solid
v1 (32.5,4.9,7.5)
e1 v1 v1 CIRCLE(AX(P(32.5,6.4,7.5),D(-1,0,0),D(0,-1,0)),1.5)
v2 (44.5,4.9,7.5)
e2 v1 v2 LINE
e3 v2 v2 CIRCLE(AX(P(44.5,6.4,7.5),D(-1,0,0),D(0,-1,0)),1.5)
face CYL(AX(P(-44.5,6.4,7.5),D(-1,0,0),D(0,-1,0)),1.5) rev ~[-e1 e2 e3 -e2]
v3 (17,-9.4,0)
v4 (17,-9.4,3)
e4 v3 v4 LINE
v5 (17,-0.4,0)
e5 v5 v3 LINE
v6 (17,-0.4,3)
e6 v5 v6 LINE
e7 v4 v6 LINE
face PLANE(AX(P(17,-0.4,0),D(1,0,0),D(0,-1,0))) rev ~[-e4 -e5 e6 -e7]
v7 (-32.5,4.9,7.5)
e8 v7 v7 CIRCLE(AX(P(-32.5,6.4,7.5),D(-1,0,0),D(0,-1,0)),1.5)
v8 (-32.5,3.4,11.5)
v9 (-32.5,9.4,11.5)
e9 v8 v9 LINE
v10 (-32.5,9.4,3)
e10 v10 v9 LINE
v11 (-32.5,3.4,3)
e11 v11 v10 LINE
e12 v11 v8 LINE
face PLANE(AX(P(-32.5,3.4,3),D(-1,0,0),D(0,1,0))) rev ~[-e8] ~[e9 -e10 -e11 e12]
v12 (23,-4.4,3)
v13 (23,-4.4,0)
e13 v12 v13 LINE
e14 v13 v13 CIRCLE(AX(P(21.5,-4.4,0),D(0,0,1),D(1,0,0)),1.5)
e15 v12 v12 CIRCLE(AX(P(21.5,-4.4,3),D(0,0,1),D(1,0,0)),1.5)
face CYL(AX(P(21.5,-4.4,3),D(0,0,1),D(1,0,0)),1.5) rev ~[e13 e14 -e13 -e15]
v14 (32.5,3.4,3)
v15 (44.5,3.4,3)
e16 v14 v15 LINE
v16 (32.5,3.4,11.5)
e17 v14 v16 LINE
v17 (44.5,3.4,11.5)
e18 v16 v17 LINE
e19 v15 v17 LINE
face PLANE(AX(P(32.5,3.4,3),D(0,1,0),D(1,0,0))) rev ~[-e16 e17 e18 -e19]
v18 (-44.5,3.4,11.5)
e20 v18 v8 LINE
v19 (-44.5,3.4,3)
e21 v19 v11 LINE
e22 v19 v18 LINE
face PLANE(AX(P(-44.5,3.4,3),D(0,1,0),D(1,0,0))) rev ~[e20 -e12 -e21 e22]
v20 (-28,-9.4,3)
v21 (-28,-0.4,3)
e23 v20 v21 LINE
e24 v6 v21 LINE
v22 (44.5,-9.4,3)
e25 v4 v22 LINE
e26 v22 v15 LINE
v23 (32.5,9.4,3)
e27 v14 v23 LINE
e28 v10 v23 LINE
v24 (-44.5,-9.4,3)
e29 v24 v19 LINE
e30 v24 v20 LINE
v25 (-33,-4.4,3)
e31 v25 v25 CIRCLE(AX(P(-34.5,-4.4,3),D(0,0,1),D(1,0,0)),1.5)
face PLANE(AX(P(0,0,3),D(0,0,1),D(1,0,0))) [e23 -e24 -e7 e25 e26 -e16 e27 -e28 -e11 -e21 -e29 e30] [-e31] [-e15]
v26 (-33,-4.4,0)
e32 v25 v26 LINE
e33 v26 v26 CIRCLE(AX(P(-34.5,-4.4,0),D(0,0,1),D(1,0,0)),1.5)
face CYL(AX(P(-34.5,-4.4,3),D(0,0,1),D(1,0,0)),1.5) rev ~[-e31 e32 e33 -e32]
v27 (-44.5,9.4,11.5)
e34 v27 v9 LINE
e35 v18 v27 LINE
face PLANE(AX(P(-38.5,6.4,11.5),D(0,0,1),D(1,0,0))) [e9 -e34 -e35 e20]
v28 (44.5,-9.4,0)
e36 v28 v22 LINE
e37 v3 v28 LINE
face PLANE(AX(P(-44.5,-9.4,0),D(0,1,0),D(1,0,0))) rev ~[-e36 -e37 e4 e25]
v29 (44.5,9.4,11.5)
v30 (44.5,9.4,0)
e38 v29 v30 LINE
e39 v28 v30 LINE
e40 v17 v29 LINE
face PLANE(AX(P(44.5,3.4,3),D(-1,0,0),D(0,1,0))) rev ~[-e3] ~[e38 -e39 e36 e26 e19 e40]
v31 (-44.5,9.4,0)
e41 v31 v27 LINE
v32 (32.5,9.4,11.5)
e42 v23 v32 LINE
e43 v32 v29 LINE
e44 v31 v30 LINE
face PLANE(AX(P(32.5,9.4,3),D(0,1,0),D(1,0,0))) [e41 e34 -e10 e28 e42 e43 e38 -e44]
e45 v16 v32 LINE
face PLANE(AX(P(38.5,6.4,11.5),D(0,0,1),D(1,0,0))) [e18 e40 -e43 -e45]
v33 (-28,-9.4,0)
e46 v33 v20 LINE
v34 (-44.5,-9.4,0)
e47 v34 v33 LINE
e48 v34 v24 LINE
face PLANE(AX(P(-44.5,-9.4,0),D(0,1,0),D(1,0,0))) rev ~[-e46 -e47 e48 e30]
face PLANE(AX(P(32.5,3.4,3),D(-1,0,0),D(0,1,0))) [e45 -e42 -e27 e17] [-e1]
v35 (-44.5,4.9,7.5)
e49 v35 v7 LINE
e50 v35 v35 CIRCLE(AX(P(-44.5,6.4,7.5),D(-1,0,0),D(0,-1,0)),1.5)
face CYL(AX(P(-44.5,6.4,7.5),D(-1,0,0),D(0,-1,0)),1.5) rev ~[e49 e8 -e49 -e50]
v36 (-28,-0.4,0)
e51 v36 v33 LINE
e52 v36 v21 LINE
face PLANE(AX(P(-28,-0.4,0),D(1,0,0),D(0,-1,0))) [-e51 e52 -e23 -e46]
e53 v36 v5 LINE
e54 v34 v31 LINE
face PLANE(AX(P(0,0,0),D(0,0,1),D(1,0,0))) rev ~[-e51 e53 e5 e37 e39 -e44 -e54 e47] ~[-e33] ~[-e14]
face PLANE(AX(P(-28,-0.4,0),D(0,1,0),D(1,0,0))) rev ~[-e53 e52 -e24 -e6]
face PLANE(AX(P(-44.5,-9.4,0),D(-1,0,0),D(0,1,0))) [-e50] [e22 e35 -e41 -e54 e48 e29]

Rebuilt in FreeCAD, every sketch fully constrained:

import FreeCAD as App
import Part
import Sketcher
from FreeCAD import Vector

doc = App.newDocument("Part")
params = doc.addObject("Spreadsheet::Sheet", "Params")
for row, (alias, value) in enumerate([
    ("sketch1_width", "89 mm"),
    ("sketch1_height", "18.8 mm"),
    ("pad1_length", "3 mm"),
    ("sketch2_width", "12 mm"),
    ("sketch2_height", "6 mm"),
    ("pad2_length", "8.5 mm"),
    ("sketch3_diameter", "3 mm"),
    ("sketch4_diameter", "3 mm"),
    ("pocket2_length", "15 mm"),
    ("sketch5_width", "45 mm"),
    ("sketch5_height", "9 mm"),
    ("pocket3_length", "25 mm"),
], start=1):
    params.set(f"A{row}", alias)
    params.set(f"B{row}", "=" + value)
    params.setAlias(f"B{row}", alias)

body = doc.addObject("PartDesign::Body", "Body")

sketch1 = body.newObject("Sketcher::SketchObject", "Sketch")
sketch1.AttachmentSupport = (doc.getObject("XY_Plane"), [""])
sketch1.MapMode = "FlatFace"
sketch1.addGeometry([
    Part.LineSegment(Vector(-44.5, 9.4, 0), Vector(-44.5, -9.4, 0)),
    Part.LineSegment(Vector(-44.5, -9.4, 0), Vector(44.5, -9.4, 0)),
    Part.LineSegment(Vector(44.5, -9.4, 0), Vector(44.5, 9.4, 0)),
    Part.LineSegment(Vector(44.5, 9.4, 0), Vector(-44.5, 9.4, 0)),
], False)
sketch1.addConstraint([
    Sketcher.Constraint("Coincident", 0, 2, 1, 1),
    Sketcher.Constraint("Coincident", 1, 2, 2, 1),
    Sketcher.Constraint("Coincident", 2, 2, 3, 1),
    Sketcher.Constraint("Coincident", 3, 2, 0, 1),
    Sketcher.Constraint("Vertical", 0),
    Sketcher.Constraint("Horizontal", 1),
    Sketcher.Constraint("Vertical", 2),
    Sketcher.Constraint("Horizontal", 3),
    Sketcher.Constraint("Symmetric", 0, 2, 2, 2, -1, 1),
    Sketcher.Constraint("DistanceX", 1, 1, 1, 2, 89.0),
    Sketcher.Constraint("DistanceY", 0, 2, 0, 1, 18.8),
])
sketch1.setExpression("Constraints[9]", "Params.sketch1_width")
sketch1.setExpression("Constraints[10]", "Params.sketch1_height")
pad1 = body.newObject("PartDesign::Pad", "Pad")
pad1.Profile = sketch1
pad1.setExpression("Length", "Params.pad1_length")

sketch2 = body.newObject("Sketcher::SketchObject", "Sketch001")
sketch2.AttachmentSupport = (doc.getObject("XY_Plane"), [""])
sketch2.MapMode = "FlatFace"
sketch2.AttachmentOffset = App.Placement(Vector(0, 0, 3), App.Rotation())
sketch2.addGeometry([
    Part.LineSegment(Vector(32.5, 9.4, 0), Vector(32.5, 3.4, 0)),
    Part.LineSegment(Vector(32.5, 3.4, 0), Vector(44.5, 3.4, 0)),
    Part.LineSegment(Vector(44.5, 3.4, 0), Vector(44.5, 9.4, 0)),
    Part.LineSegment(Vector(44.5, 9.4, 0), Vector(32.5, 9.4, 0)),
    Part.LineSegment(Vector(-44.5, 9.4, 0), Vector(-44.5, 3.4, 0)),
    Part.LineSegment(Vector(-44.5, 3.4, 0), Vector(-32.5, 3.4, 0)),
    Part.LineSegment(Vector(-32.5, 3.4, 0), Vector(-32.5, 9.4, 0)),
    Part.LineSegment(Vector(-32.5, 9.4, 0), Vector(-44.5, 9.4, 0)),
], False)
sketch2.addConstraint([
    Sketcher.Constraint("Coincident", 0, 2, 1, 1),
    Sketcher.Constraint("Coincident", 1, 2, 2, 1),
    Sketcher.Constraint("Coincident", 2, 2, 3, 1),
    Sketcher.Constraint("Coincident", 3, 2, 0, 1),
    Sketcher.Constraint("Coincident", 4, 2, 5, 1),
    Sketcher.Constraint("Coincident", 5, 2, 6, 1),
    Sketcher.Constraint("Coincident", 6, 2, 7, 1),
    Sketcher.Constraint("Coincident", 7, 2, 4, 1),
    Sketcher.Constraint("Vertical", 0),
    Sketcher.Constraint("Horizontal", 1),
    Sketcher.Constraint("Vertical", 2),
    Sketcher.Constraint("Horizontal", 3),
    Sketcher.Constraint("Vertical", 4),
    Sketcher.Constraint("Horizontal", 5),
    Sketcher.Constraint("Vertical", 6),
    Sketcher.Constraint("Horizontal", 7),
    Sketcher.Constraint("Symmetric", 1, 2, 4, 2, -2),
    Sketcher.Constraint("Symmetric", 3, 2, 6, 2, -2),
    Sketcher.Constraint("DistanceX", 1, 1, 1, 2, 12.0),
    Sketcher.Constraint("DistanceY", 0, 2, 0, 1, 6.0),
    Sketcher.Constraint("DistanceX", 4, 2, 0, 2, 77.0),
    Sketcher.Constraint("DistanceY", -1, 1, 0, 2, 3.4),
])
sketch2.setExpression("Constraints[18]", "Params.sketch2_width")
sketch2.setExpression("Constraints[19]", "Params.sketch2_height")
pad2 = body.newObject("PartDesign::Pad", "Pad001")
pad2.Profile = sketch2
pad2.setExpression("Length", "Params.pad2_length")

sketch3 = body.newObject("Sketcher::SketchObject", "Sketch002")
sketch3.AttachmentSupport = (doc.getObject("YZ_Plane"), [""])
sketch3.MapMode = "FlatFace"
sketch3.AttachmentOffset = App.Placement(Vector(0, 0, -44.5), App.Rotation())
sketch3.addGeometry(Part.Circle(Vector(6.4, 7.5, 0), Vector(0, 0, 1), 1.5), False)
sketch3.addConstraint([
    Sketcher.Constraint("Diameter", 0, 3.0),
    Sketcher.Constraint("DistanceX", -1, 1, 0, 3, 6.4),
    Sketcher.Constraint("DistanceY", -1, 1, 0, 3, 7.5),
])
sketch3.setExpression("Constraints[0]", "Params.sketch3_diameter")
pocket1 = body.newObject("PartDesign::Pocket", "Pocket")
pocket1.Profile = sketch3
pocket1.Type = "ThroughAll"
pocket1.Reversed = True

sketch4 = body.newObject("Sketcher::SketchObject", "Sketch003")
sketch4.AttachmentSupport = (doc.getObject("XY_Plane"), [""])
sketch4.MapMode = "FlatFace"
sketch4.AttachmentOffset = App.Placement(Vector(0, 0, 3), App.Rotation())
sketch4.addGeometry([
    Part.Circle(Vector(21.5, -4.4, 0), Vector(0, 0, 1), 1.5),
    Part.Circle(Vector(-34.5, -4.4, 0), Vector(0, 0, 1), 1.5),
], False)
sketch4.addConstraint([
    Sketcher.Constraint("Equal", 0, 1),
    Sketcher.Constraint("Horizontal", 0, 3, 1, 3),
    Sketcher.Constraint("Diameter", 0, 3.0),
    Sketcher.Constraint("DistanceX", 1, 3, 0, 3, 56.0),
    Sketcher.Constraint("DistanceX", -1, 1, 0, 3, 21.5),
    Sketcher.Constraint("DistanceY", 0, 3, -1, 1, 4.4),
])
sketch4.setExpression("Constraints[2]", "Params.sketch4_diameter")
pocket2 = body.newObject("PartDesign::Pocket", "Pocket001")
pocket2.Profile = sketch4
pocket2.setExpression("Length", "Params.pocket2_length")

sketch5 = body.newObject("Sketcher::SketchObject", "Sketch004")
sketch5.AttachmentSupport = (doc.getObject("XY_Plane"), [""])
sketch5.MapMode = "FlatFace"
sketch5.addGeometry([
    Part.LineSegment(Vector(-28, -9.4, 0), Vector(-28, -0.4, 0)),
    Part.LineSegment(Vector(-28, -0.4, 0), Vector(17, -0.4, 0)),
    Part.LineSegment(Vector(17, -0.4, 0), Vector(17, -9.4, 0)),
    Part.LineSegment(Vector(17, -9.4, 0), Vector(-28, -9.4, 0)),
], False)
sketch5.addConstraint([
    Sketcher.Constraint("Coincident", 0, 2, 1, 1),
    Sketcher.Constraint("Coincident", 1, 2, 2, 1),
    Sketcher.Constraint("Coincident", 2, 2, 3, 1),
    Sketcher.Constraint("Coincident", 3, 2, 0, 1),
    Sketcher.Constraint("Vertical", 0),
    Sketcher.Constraint("Horizontal", 1),
    Sketcher.Constraint("Vertical", 2),
    Sketcher.Constraint("Horizontal", 3),
    Sketcher.Constraint("DistanceX", 1, 1, 1, 2, 45.0),
    Sketcher.Constraint("DistanceY", 0, 1, 0, 2, 9.0),
    Sketcher.Constraint("DistanceX", 0, 2, -1, 1, 28.0),
    Sketcher.Constraint("DistanceY", 0, 2, -1, 1, 0.4),
])
sketch5.setExpression("Constraints[8]", "Params.sketch5_width")
sketch5.setExpression("Constraints[9]", "Params.sketch5_height")
pocket3 = body.newObject("PartDesign::Pocket", "Pocket002")
pocket3.Profile = sketch5
pocket3.setExpression("Length", "Params.pocket3_length")
pocket3.Reversed = True

doc.recompute()
